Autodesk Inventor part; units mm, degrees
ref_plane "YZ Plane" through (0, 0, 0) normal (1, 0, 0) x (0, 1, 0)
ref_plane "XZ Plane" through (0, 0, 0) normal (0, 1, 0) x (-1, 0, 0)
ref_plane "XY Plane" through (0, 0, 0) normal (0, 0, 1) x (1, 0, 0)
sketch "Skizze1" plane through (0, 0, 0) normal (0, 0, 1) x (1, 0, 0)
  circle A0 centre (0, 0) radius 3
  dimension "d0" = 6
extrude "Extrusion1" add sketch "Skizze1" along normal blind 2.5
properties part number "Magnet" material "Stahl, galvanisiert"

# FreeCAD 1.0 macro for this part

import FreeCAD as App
import Part
import Sketcher
from FreeCAD import Vector
Q = App.Units.Quantity

doc = App.newDocument("Part")
body = doc.addObject("PartDesign::Body", "Body")

# Sketch on XY plane
sketch1 = body.newObject("Sketcher::SketchObject", "Sketch")
sketch1.AttachmentSupport = (doc.getObject("XY_Plane"), [""])
sketch1.MapMode = "FlatFace"
sketch1.addGeometry(Part.Circle(Vector(0, 0, 0), Vector(0, 0, 1), 3), False)
sketch1.addConstraint([
    Sketcher.Constraint("Coincident", 0, 3, -1, 1),
    Sketcher.Constraint("Diameter", 0, Q("6 mm")),
])
pad1 = body.newObject("PartDesign::Pad", "Pad")
pad1.Profile = sketch1
pad1.Length = 2.5

doc.recompute()
